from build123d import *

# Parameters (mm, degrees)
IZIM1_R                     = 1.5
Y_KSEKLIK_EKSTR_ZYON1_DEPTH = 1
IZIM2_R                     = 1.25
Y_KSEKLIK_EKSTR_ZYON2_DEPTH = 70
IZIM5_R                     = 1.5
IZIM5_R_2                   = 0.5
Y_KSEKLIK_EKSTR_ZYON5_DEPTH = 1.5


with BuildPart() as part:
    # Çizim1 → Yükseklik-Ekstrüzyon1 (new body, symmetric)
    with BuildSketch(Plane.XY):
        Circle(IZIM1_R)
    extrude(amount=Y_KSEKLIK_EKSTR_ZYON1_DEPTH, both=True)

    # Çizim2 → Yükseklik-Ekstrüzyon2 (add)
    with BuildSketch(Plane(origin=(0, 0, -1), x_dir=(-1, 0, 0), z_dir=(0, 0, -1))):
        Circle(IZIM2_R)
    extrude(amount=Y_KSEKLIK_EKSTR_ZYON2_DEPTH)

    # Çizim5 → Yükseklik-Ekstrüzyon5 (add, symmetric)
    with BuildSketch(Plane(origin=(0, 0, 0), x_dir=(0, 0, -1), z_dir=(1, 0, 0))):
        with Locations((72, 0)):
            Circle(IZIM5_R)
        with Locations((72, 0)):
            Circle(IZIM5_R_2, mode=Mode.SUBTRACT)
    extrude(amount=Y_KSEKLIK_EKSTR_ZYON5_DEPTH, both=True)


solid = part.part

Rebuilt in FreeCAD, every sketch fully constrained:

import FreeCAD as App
import Part
import Sketcher
from FreeCAD import Vector

doc = App.newDocument("Part")
body = doc.addObject("PartDesign::Body", "Body")

sketch1 = body.newObject("Sketcher::SketchObject", "Sketch")
sketch1.AttachmentSupport = (doc.getObject("XY_Plane"), [""])
sketch1.MapMode = "FlatFace"
sketch1.addGeometry(Part.Circle(Vector(0, 0, 0), Vector(0, 0, 1), 1.5), False)
sketch1.addConstraint(Sketcher.Constraint("Coincident", 0, 3, -1, 1))
sketch1.addConstraint(Sketcher.Constraint("Diameter", 0, 3.0))
pad1 = body.newObject("PartDesign::Pad", "Pad")
pad1.Profile = sketch1
pad1.Length = 2
pad1.Midplane = True

sketch2 = body.newObject("Sketcher::SketchObject", "Sketch001")
sketch2.AttachmentSupport = (doc.getObject("XY_Plane"), [""])
sketch2.MapMode = "FlatFace"
sketch2.AttachmentOffset = App.Placement(Vector(0, 0, -1), App.Rotation())
sketch2.addGeometry(Part.Circle(Vector(0, 0, 0), Vector(0, 0, 1), 1.2), False)
sketch2.addConstraint(Sketcher.Constraint("Coincident", 0, 3, -1, 1))
sketch2.addConstraint(Sketcher.Constraint("Diameter", 0, 2.5))
pad2 = body.newObject("PartDesign::Pad", "Pad001")
pad2.Profile = sketch2
pad2.Length = 70
pad2.Reversed = True

sketch3 = body.newObject("Sketcher::SketchObject", "Sketch002")
sketch3.AttachmentSupport = (doc.getObject("YZ_Plane"), [""])
sketch3.MapMode = "FlatFace"
sketch3.addGeometry(Part.Circle(Vector(0, -72, 0), Vector(0, 0, 1), 1.5), False)
sketch3.addGeometry(Part.Circle(Vector(0, -72, 0), Vector(0, 0, 1), 0.5), False)
sketch3.addConstraint(Sketcher.Constraint("Coincident", 1, 3, 0, 3))
sketch3.addConstraint(Sketcher.Constraint("PointOnObject", 0, 3, -2))
sketch3.addConstraint(Sketcher.Constraint("Diameter", 0, 3.0))
sketch3.addConstraint(Sketcher.Constraint("Diameter", 1, 1.0))
sketch3.addConstraint(Sketcher.Constraint("DistanceY", 0, 3, -1, 1, 72.0))
pad3 = body.newObject("PartDesign::Pad", "Pad002")
pad3.Profile = sketch3
pad3.Length = 3
pad3.Midplane = True

doc.recompute()
